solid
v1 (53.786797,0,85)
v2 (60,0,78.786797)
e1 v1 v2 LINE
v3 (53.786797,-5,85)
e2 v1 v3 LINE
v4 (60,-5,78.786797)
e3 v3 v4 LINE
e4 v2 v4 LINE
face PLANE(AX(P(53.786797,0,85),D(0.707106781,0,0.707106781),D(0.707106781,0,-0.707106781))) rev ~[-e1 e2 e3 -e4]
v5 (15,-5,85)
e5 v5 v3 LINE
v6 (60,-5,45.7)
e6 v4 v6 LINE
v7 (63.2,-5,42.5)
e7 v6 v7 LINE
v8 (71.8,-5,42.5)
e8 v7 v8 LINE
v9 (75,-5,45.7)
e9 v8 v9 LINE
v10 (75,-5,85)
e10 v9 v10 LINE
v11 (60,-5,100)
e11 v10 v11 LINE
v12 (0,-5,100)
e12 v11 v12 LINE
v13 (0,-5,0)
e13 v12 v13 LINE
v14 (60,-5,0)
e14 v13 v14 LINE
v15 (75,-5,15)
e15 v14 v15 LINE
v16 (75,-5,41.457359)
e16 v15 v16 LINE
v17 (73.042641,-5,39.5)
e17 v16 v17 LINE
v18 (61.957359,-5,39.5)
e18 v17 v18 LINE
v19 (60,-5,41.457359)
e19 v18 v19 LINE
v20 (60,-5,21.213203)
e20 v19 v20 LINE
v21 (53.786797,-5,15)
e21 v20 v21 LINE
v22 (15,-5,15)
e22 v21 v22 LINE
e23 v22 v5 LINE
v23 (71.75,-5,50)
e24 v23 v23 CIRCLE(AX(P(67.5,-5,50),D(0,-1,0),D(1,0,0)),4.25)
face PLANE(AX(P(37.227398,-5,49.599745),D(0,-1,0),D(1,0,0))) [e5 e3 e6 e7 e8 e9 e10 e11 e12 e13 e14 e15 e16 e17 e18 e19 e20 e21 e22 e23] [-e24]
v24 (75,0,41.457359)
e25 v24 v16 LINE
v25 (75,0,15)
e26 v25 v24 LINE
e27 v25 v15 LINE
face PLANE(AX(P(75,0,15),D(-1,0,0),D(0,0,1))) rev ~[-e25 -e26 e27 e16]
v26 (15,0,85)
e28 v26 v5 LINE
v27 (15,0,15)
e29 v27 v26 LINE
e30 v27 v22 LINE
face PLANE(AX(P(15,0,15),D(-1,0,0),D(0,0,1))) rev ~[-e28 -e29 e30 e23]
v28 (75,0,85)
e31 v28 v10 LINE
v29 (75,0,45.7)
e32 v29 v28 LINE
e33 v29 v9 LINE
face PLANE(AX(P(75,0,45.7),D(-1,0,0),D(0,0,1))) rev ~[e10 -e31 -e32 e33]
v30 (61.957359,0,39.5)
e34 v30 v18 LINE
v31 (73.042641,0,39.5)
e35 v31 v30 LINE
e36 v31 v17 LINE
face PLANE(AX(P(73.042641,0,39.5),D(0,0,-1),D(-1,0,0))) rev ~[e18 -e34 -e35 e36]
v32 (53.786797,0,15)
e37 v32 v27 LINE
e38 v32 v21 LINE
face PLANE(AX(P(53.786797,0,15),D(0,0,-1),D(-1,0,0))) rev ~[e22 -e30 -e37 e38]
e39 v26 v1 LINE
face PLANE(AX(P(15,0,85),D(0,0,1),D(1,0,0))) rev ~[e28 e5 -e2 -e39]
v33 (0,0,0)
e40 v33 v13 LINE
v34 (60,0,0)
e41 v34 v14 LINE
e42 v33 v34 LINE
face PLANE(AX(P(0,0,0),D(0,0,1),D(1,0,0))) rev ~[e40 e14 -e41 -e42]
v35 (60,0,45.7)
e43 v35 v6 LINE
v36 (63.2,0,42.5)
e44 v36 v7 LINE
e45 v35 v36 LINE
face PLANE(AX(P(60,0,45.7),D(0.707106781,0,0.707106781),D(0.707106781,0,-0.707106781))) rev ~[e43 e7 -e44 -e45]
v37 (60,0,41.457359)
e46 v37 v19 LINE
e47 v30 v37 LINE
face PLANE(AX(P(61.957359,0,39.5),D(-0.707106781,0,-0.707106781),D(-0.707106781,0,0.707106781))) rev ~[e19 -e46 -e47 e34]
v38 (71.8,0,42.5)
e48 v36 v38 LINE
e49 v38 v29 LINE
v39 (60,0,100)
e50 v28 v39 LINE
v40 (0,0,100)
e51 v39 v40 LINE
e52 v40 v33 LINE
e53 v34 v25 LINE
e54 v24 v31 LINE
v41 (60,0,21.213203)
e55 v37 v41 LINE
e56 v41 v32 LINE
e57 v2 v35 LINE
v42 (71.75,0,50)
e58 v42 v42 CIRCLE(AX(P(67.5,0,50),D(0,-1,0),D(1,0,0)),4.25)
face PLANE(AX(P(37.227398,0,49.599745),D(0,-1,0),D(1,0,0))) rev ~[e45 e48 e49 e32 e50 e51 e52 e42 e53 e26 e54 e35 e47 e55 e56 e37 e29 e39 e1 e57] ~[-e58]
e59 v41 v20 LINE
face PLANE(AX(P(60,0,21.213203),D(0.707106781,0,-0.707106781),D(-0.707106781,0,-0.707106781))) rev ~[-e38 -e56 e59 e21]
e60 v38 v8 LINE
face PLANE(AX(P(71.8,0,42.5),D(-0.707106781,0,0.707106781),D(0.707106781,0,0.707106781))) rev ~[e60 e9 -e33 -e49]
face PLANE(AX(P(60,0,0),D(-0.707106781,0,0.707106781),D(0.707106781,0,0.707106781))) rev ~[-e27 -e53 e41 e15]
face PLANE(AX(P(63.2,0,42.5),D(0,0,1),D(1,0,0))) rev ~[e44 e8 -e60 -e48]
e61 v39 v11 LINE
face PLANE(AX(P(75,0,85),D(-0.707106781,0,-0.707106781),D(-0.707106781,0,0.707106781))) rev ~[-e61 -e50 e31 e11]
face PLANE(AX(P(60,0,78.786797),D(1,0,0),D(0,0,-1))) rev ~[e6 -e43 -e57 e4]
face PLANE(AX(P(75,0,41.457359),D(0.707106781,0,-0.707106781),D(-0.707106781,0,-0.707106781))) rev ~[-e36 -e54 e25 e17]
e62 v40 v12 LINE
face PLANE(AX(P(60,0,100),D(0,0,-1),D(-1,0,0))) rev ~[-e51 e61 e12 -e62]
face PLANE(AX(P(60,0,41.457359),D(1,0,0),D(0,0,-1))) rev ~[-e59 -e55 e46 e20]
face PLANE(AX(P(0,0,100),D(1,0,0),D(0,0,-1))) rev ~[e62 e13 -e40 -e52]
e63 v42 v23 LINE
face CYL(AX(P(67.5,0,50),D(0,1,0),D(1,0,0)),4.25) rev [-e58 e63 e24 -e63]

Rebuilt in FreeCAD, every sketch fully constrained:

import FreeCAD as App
import Part
import Sketcher

doc = App.newDocument("Part")
body = doc.addObject("PartDesign::Body", "Body")

sketch1 = body.newObject("Sketcher::SketchObject", "Sketch")
sketch1.AttachmentSupport = (doc.getObject("XZ_Plane"), [""])
sketch1.MapMode = "FlatFace"
sketch1.addGeometry([
    Part.LineSegment(App.Vector(0, 100, 0), App.Vector(0, 0, 0)),
    Part.LineSegment(App.Vector(0, 0, 0), App.Vector(60, 0, 0)),
    Part.LineSegment(App.Vector(60, 0, 0), App.Vector(75, 15, 0)),
    Part.LineSegment(App.Vector(75, 15, 0), App.Vector(75, 41.457359, 0)),
    Part.LineSegment(App.Vector(75, 41.457359, 0), App.Vector(73.042641, 39.5, 0)),
    Part.LineSegment(App.Vector(73.042641, 39.5, 0), App.Vector(61.957359, 39.5, 0)),
    Part.LineSegment(App.Vector(61.957359, 39.5, 0), App.Vector(60, 41.457359, 0)),
    Part.LineSegment(App.Vector(60, 41.457359, 0), App.Vector(60, 21.213203, 0)),
    Part.LineSegment(App.Vector(60, 21.213203, 0), App.Vector(53.786797, 15, 0)),
    Part.LineSegment(App.Vector(53.786797, 15, 0), App.Vector(15, 15, 0)),
    Part.LineSegment(App.Vector(15, 15, 0), App.Vector(15, 85, 0)),
    Part.LineSegment(App.Vector(15, 85, 0), App.Vector(53.786797, 85, 0)),
    Part.LineSegment(App.Vector(53.786797, 85, 0), App.Vector(60, 78.786797, 0)),
    Part.LineSegment(App.Vector(60, 78.786797, 0), App.Vector(60, 45.7, 0)),
    Part.LineSegment(App.Vector(60, 45.7, 0), App.Vector(63.2, 42.5, 0)),
    Part.LineSegment(App.Vector(63.2, 42.5, 0), App.Vector(71.8, 42.5, 0)),
    Part.LineSegment(App.Vector(71.8, 42.5, 0), App.Vector(75, 45.7, 0)),
    Part.LineSegment(App.Vector(75, 45.7, 0), App.Vector(75, 85, 0)),
    Part.LineSegment(App.Vector(75, 85, 0), App.Vector(60, 100, 0)),
    Part.LineSegment(App.Vector(60, 100, 0), App.Vector(0, 100, 0)),
    Part.Circle(App.Vector(67.5, 50, 0), App.Vector(0, 0, 1), 4.25),
], False)
sketch1.addConstraint([
    Sketcher.Constraint("Coincident", 0, 2, 1, 1),
    Sketcher.Constraint("Coincident", 1, 2, 2, 1),
    Sketcher.Constraint("Coincident", 2, 2, 3, 1),
    Sketcher.Constraint("Coincident", 3, 2, 4, 1),
    Sketcher.Constraint("Coincident", 4, 2, 5, 1),
    Sketcher.Constraint("Coincident", 5, 2, 6, 1),
    Sketcher.Constraint("Coincident", 6, 2, 7, 1),
    Sketcher.Constraint("Coincident", 7, 2, 8, 1),
    Sketcher.Constraint("Coincident", 8, 2, 9, 1),
    Sketcher.Constraint("Coincident", 9, 2, 10, 1),
    Sketcher.Constraint("Coincident", 10, 2, 11, 1),
    Sketcher.Constraint("Coincident", 11, 2, 12, 1),
    Sketcher.Constraint("Coincident", 12, 2, 13, 1),
    Sketcher.Constraint("Coincident", 13, 2, 14, 1),
    Sketcher.Constraint("Coincident", 14, 2, 15, 1),
    Sketcher.Constraint("Coincident", 15, 2, 16, 1),
    Sketcher.Constraint("Coincident", 16, 2, 17, 1),
    Sketcher.Constraint("Coincident", 17, 2, 18, 1),
    Sketcher.Constraint("Coincident", 18, 2, 19, 1),
    Sketcher.Constraint("Coincident", 19, 2, 0, 1),
    Sketcher.Constraint("Vertical", 0),
    Sketcher.Constraint("Horizontal", 1),
    Sketcher.Constraint("Vertical", 3),
    Sketcher.Constraint("Horizontal", 5),
    Sketcher.Constraint("Vertical", 7),
    Sketcher.Constraint("Horizontal", 9),
    Sketcher.Constraint("Vertical", 10),
    Sketcher.Constraint("Horizontal", 11),
    Sketcher.Constraint("Vertical", 13),
    Sketcher.Constraint("Horizontal", 15),
    Sketcher.Constraint("Vertical", 17),
    Sketcher.Constraint("Horizontal", 19),
    Sketcher.Constraint("Coincident", 0, 2, -1, 1),
    Sketcher.Constraint("Parallel", 2, 4),
    Sketcher.Constraint("Perpendicular", 4, 6),
    Sketcher.Constraint("Perpendicular", 6, 8),
    Sketcher.Constraint("Perpendicular", 8, 12),
    Sketcher.Constraint("Parallel", 12, 14),
    Sketcher.Constraint("Perpendicular", 14, 16),
    Sketcher.Constraint("Perpendicular", 16, 18),
    Sketcher.Constraint("Horizontal", 3, 2, 6, 2),
    Sketcher.Constraint("Horizontal", 2, 2, 8, 2),
    Sketcher.Constraint("Horizontal", 13, 2, 16, 2),
    Sketcher.Constraint("Horizontal", 11, 2, 17, 2),
    Sketcher.Constraint("Vertical", 1, 2, 6, 2),
    Sketcher.Constraint("Vertical", 8, 2, 11, 2),
    Sketcher.Constraint("Vertical", 7, 2, 12, 2),
    Sketcher.Constraint("Vertical", 3, 2, 16, 2),
    Sketcher.Constraint("Vertical", 13, 2, 18, 2),
    Sketcher.Constraint("Equal", 4, 6),
    Sketcher.Constraint("Diameter", 20, 8.5),
    Sketcher.Constraint("DistanceX", 1, 1, 1, 2, 60.0),
    Sketcher.Constraint("DistanceY", 0, 2, 0, 1, 100.0),
    Sketcher.Constraint("DistanceY", 10, 1, 10, 2, 70.0),
    Sketcher.Constraint("DistanceX", 15, 1, 15, 2, 8.6),
    Sketcher.Constraint("DistanceY", 17, 1, 17, 2, 39.3),
    Sketcher.Constraint("DistanceY", -1, 1, 20, 3, 50.0),
    Sketcher.Constraint("DistanceX", -1, 1, 9, 2, 15.0),
    Sketcher.Constraint("DistanceY", 5, 2, 14, 2, 3.0),
    Sketcher.Constraint("DistanceX", -1, 1, 20, 3, 67.5),
    Sketcher.Constraint("DistanceY", 3, 1, 3, 2, 26.457359),
    Sketcher.Constraint("DistanceX", 9, 2, 9, 1, 38.786797),
])
pad1 = body.newObject("PartDesign::Pad", "Pad")
pad1.Profile = sketch1
pad1.Length = 5

doc.recompute()
